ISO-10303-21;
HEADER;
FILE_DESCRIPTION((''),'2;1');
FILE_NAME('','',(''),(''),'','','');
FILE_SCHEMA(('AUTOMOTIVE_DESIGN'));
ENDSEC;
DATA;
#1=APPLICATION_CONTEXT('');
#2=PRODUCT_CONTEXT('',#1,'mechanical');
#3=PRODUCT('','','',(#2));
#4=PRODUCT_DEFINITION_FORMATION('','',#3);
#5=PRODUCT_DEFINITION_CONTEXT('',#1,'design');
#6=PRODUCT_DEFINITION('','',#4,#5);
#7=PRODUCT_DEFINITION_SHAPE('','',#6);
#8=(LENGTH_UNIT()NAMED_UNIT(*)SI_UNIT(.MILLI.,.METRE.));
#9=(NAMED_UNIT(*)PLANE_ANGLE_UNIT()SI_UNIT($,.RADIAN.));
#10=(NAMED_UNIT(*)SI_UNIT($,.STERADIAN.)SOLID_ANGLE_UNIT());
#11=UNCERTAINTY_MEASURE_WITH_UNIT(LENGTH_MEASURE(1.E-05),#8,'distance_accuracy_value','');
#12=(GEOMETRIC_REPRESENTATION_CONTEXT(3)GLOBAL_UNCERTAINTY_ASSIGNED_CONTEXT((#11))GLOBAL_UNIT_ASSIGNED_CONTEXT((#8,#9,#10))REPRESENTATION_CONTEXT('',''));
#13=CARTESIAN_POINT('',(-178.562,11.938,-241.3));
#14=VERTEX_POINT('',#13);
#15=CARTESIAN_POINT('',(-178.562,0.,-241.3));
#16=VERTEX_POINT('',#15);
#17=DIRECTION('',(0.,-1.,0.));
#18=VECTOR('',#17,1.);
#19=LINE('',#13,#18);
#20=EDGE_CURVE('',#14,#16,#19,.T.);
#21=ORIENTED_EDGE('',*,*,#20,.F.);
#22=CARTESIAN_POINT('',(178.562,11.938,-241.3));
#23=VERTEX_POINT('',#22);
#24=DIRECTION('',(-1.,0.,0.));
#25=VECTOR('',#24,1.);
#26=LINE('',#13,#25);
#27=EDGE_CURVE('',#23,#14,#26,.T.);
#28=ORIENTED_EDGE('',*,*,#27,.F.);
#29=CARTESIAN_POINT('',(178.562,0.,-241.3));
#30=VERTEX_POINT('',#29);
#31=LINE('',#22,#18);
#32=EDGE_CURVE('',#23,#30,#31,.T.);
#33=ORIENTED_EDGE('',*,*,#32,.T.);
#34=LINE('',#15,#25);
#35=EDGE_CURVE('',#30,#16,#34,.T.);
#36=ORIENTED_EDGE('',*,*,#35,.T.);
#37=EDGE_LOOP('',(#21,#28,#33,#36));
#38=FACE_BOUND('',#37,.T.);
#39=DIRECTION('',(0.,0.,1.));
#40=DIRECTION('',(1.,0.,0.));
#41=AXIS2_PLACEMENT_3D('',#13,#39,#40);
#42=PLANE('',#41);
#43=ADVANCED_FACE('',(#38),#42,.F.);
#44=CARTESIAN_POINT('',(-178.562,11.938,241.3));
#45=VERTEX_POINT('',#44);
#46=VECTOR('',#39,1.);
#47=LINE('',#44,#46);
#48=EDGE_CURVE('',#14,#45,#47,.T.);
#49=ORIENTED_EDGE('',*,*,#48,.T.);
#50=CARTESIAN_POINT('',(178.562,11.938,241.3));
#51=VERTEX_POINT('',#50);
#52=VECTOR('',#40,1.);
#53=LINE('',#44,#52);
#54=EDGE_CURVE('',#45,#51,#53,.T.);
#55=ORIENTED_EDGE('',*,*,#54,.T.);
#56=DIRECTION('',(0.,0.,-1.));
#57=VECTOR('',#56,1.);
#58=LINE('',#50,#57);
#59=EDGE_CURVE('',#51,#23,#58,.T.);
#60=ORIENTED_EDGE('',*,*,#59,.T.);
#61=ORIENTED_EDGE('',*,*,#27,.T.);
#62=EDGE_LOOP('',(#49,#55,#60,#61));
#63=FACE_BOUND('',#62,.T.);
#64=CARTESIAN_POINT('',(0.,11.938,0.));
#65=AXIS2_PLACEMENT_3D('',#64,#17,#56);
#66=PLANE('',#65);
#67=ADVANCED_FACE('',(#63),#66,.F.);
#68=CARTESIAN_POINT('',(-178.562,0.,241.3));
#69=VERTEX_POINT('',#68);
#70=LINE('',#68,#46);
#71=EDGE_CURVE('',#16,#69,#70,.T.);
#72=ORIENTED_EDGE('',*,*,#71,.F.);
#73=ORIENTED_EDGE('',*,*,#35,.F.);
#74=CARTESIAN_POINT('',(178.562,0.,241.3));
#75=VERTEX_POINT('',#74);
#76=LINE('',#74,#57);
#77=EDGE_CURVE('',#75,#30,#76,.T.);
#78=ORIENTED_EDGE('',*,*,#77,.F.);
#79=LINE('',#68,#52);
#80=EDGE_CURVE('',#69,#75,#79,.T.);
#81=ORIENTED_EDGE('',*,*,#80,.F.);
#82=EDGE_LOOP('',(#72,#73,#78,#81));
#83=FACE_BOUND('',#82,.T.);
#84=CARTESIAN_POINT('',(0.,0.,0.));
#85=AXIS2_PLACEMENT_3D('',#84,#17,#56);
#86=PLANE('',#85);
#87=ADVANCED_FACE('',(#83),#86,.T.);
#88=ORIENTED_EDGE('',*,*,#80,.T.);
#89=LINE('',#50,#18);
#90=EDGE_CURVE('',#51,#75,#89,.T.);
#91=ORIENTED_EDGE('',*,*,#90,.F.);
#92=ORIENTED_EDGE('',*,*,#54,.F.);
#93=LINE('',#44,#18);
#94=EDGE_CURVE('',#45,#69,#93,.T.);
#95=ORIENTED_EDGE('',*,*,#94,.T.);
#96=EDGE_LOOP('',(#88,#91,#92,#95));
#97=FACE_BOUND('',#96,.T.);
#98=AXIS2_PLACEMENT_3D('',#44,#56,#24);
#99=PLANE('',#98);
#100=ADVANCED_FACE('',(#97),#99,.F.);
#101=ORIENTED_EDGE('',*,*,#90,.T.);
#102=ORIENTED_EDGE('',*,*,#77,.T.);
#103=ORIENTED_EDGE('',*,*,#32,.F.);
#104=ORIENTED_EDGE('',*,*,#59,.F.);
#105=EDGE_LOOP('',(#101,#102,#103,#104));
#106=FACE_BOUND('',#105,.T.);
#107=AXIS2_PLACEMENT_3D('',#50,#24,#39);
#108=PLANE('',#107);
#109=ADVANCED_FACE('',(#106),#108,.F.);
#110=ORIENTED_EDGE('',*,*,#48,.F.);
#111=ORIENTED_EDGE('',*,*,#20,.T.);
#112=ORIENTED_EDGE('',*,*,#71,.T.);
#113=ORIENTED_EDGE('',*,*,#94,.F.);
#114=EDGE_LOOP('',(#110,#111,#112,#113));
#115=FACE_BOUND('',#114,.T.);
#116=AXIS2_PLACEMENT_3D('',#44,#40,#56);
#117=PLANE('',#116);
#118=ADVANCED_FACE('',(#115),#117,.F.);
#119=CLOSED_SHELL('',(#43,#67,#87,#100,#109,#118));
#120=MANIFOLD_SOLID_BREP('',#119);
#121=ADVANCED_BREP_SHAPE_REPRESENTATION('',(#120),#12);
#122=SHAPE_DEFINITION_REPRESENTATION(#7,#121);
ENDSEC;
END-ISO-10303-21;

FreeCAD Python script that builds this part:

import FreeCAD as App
import Part
import Sketcher

V = App.Vector
Q = App.Units.Quantity

doc = App.newDocument("Part")
params = doc.addObject("Spreadsheet::Sheet", "Params")
for row, (alias, value) in enumerate([
    ("sketch1_height", "19 in"),
    ("sketch1_width", "14.06 in"),
    ("pad1_length", "0.47 in"),
], start=1):
    params.set(f"A{row}", alias)
    params.set(f"B{row}", "=" + value)
    params.setAlias(f"B{row}", alias)

body = doc.addObject("PartDesign::Body", "Body")

sketch1 = body.newObject("Sketcher::SketchObject", "Sketch")
sketch1.AttachmentSupport = (doc.getObject("XZ_Plane"), [""])
sketch1.MapMode = "FlatFace"
sketch1.addGeometry([
    Part.LineSegment(V(-178.562, -241.3, 0), V(-178.562, 241.3, 0)),
    Part.LineSegment(V(-178.562, 241.3, 0), V(178.562, 241.3, 0)),
    Part.LineSegment(V(178.562, 241.3, 0), V(178.562, -241.3, 0)),
    Part.LineSegment(V(178.562, -241.3, 0), V(-178.562, -241.3, 0)),
], False)
sketch1.addConstraint([
    Sketcher.Constraint("Coincident", 0, 2, 1, 1),
    Sketcher.Constraint("Coincident", 1, 2, 2, 1),
    Sketcher.Constraint("Coincident", 2, 2, 3, 1),
    Sketcher.Constraint("Coincident", 3, 2, 0, 1),
    Sketcher.Constraint("Vertical", 0),
    Sketcher.Constraint("Horizontal", 1),
    Sketcher.Constraint("Vertical", 2),
    Sketcher.Constraint("Horizontal", 3),
    Sketcher.Constraint("Symmetric", 0, 2, 2, 2, -1, 1),
    Sketcher.Constraint("DistanceY", 0, 1, 0, 2, Q("19 in")),
    Sketcher.Constraint("DistanceX", 1, 1, 1, 2, Q("14.06 in")),
])
sketch1.setExpression("Constraints[9]", "Params.sketch1_height")
sketch1.setExpression("Constraints[10]", "Params.sketch1_width")
pad1 = body.newObject("PartDesign::Pad", "Pad")
pad1.Profile = sketch1
pad1.setExpression("Length", "Params.pad1_length")
pad1.Reversed = True

doc.recompute()
